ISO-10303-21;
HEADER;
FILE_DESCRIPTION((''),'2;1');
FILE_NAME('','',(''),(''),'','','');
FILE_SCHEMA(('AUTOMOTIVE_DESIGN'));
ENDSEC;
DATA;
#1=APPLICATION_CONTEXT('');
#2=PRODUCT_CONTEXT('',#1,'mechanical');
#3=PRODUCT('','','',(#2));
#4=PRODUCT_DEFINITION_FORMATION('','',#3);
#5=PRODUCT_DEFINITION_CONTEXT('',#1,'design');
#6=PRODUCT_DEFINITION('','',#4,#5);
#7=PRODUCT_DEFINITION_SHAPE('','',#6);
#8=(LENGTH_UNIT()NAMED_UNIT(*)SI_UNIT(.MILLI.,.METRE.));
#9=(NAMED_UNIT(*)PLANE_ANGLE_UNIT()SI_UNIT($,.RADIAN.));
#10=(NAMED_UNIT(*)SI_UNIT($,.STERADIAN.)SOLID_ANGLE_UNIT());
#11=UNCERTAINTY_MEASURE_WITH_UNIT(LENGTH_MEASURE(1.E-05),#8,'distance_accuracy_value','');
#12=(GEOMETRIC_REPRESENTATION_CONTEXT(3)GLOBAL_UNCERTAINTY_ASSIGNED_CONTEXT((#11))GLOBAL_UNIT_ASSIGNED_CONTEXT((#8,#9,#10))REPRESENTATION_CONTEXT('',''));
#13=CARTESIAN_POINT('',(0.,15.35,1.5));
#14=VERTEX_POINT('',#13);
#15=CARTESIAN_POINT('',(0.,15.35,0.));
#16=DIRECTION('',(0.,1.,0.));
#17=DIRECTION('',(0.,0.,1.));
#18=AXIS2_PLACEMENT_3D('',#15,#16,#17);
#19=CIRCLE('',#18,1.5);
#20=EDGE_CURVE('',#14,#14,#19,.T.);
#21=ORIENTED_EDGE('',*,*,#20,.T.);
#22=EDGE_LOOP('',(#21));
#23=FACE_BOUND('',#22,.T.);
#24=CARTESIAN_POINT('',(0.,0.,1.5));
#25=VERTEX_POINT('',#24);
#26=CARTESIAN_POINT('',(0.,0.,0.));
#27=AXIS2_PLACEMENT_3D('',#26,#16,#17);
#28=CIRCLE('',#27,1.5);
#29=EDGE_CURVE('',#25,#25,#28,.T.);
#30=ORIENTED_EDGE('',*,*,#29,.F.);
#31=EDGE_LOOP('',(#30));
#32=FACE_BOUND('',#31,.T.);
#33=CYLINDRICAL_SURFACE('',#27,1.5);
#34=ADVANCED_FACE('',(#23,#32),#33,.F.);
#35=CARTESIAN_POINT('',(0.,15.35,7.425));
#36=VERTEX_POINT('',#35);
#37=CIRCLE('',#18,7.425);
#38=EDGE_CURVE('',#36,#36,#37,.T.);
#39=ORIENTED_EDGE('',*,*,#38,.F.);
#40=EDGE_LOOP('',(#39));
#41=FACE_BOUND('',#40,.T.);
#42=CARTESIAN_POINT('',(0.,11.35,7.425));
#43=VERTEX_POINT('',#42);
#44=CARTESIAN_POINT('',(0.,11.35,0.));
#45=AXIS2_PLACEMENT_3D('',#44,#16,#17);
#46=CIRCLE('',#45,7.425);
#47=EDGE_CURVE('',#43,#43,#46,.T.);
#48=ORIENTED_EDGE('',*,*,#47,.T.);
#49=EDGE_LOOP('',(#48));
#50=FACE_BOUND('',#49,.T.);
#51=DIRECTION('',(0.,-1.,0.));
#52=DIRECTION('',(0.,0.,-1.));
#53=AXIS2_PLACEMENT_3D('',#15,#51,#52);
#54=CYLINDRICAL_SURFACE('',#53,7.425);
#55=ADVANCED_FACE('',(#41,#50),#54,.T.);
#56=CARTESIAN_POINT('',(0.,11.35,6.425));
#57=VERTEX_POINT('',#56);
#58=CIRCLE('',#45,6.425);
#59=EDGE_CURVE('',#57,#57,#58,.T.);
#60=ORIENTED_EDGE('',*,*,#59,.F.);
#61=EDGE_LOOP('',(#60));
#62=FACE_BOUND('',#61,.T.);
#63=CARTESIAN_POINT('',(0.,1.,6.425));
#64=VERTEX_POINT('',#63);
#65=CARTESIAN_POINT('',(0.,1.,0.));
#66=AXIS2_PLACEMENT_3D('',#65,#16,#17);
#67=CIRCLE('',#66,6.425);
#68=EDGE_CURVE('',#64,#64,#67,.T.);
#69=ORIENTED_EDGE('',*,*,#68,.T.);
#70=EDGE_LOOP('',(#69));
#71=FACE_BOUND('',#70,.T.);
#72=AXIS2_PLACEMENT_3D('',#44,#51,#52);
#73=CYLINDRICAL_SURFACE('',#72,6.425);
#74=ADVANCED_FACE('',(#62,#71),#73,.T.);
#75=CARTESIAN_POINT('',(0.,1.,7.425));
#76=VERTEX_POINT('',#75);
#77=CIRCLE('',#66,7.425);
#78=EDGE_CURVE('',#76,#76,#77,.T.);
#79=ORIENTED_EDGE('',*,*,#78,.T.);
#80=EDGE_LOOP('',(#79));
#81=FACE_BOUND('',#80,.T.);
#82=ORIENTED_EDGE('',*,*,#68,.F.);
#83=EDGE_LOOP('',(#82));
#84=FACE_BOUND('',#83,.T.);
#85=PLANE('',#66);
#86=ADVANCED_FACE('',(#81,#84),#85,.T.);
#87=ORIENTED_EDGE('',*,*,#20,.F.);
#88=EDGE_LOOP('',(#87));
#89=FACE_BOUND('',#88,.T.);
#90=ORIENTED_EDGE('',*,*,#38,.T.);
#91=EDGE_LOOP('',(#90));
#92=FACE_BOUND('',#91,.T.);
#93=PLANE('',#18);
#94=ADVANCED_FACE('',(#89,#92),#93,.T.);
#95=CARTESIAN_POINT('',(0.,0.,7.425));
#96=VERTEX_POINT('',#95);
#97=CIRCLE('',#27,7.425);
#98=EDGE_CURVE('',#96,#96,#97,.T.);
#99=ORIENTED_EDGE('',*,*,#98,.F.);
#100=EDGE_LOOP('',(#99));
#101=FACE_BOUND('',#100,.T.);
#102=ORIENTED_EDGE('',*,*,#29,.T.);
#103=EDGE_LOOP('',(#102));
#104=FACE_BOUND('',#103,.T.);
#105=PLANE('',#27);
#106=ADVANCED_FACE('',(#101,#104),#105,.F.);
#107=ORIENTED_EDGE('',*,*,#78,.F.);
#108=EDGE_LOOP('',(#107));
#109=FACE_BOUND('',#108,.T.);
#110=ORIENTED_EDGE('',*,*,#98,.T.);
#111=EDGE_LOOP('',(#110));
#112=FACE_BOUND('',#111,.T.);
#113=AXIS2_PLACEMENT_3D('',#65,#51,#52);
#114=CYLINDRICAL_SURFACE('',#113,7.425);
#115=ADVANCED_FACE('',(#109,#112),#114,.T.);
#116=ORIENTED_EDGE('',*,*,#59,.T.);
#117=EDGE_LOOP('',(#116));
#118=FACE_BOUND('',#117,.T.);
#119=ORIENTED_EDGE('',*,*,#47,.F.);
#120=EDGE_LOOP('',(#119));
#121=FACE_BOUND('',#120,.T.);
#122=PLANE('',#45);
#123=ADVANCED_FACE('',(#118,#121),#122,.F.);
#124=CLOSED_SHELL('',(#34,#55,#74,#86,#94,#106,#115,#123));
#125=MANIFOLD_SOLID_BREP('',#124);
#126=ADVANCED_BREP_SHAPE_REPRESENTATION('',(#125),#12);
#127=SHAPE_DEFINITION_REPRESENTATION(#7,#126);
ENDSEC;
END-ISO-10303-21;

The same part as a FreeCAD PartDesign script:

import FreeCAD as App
import Part
import Sketcher

V = App.Vector
Q = App.Units.Quantity

doc = App.newDocument("Part")
body = doc.addObject("PartDesign::Body", "Body")

# Sketch on XZ plane
sketch1 = doc.addObject("Sketcher::SketchObject", "Sketch")
body.addObject(sketch1)
sketch1.AttachmentSupport = (doc.XZ_Plane, [""])
sketch1.MapMode = "FlatFace"
sketch1.addGeometry(Part.Circle(V(0, 0, 0), V(0, 0, 1), 7), False)
sketch1.addConstraint([
    Sketcher.Constraint("Coincident", 0, 3, -1, 1),
    Sketcher.Constraint("Diameter", 0, Q("14.85 mm")),
])
pad1 = doc.addObject("PartDesign::Pad", "Pad")
body.addObject(pad1)
pad1.Profile = sketch1
pad1.Length = 1
pad1.Reversed = True

# Sketch on XZ plane
sketch2 = doc.addObject("Sketcher::SketchObject", "Sketch001")
body.addObject(sketch2)
sketch2.AttachmentSupport = (doc.XZ_Plane, [""])
sketch2.MapMode = "FlatFace"
sketch2.AttachmentOffset = App.Placement(V(0, 0, -1), App.Rotation())
sketch2.addGeometry(Part.Circle(V(0, 0, 0), V(0, 0, 1), 6), False)
sketch2.addConstraint([
    Sketcher.Constraint("Coincident", 0, 3, -1, 1),
    Sketcher.Constraint("Diameter", 0, Q("12.85 mm")),
])
pad2 = doc.addObject("PartDesign::Pad", "Pad001")
body.addObject(pad2)
pad2.Profile = sketch2
pad2.Length = 10.35
pad2.Reversed = True

# Sketch on XZ plane
sketch3 = doc.addObject("Sketcher::SketchObject", "Sketch002")
body.addObject(sketch3)
sketch3.AttachmentSupport = (doc.XZ_Plane, [""])
sketch3.MapMode = "FlatFace"
sketch3.AttachmentOffset = App.Placement(V(0, 0, -11.35), App.Rotation())
sketch3.addGeometry(Part.Circle(V(0, 0, 0), V(0, 0, 1), 7), False)
sketch3.addConstraint([
    Sketcher.Constraint("Coincident", 0, 3, -1, 1),
    Sketcher.Constraint("Diameter", 0, Q("14.85 mm")),
])
pad3 = doc.addObject("PartDesign::Pad", "Pad002")
body.addObject(pad3)
pad3.Profile = sketch3
pad3.Length = 4
pad3.Reversed = True

# Sketch on XZ plane
sketch4 = doc.addObject("Sketcher::SketchObject", "Sketch003")
body.addObject(sketch4)
sketch4.AttachmentSupport = (doc.XZ_Plane, [""])
sketch4.MapMode = "FlatFace"
sketch4.AttachmentOffset = App.Placement(V(0, 0, -15.35), App.Rotation())
sketch4.addGeometry(Part.Circle(V(0, 0, 0), V(0, 0, 1), 1.5), False)
sketch4.addConstraint([
    Sketcher.Constraint("Coincident", 0, 3, -1, 1),
    Sketcher.Constraint("Diameter", 0, Q("3 mm")),
])
pocket1 = doc.addObject("PartDesign::Pocket", "Pocket")
body.addObject(pocket1)
pocket1.Profile = sketch4
pocket1.Length = 15.35
pocket1.Reversed = True

doc.recompute()
